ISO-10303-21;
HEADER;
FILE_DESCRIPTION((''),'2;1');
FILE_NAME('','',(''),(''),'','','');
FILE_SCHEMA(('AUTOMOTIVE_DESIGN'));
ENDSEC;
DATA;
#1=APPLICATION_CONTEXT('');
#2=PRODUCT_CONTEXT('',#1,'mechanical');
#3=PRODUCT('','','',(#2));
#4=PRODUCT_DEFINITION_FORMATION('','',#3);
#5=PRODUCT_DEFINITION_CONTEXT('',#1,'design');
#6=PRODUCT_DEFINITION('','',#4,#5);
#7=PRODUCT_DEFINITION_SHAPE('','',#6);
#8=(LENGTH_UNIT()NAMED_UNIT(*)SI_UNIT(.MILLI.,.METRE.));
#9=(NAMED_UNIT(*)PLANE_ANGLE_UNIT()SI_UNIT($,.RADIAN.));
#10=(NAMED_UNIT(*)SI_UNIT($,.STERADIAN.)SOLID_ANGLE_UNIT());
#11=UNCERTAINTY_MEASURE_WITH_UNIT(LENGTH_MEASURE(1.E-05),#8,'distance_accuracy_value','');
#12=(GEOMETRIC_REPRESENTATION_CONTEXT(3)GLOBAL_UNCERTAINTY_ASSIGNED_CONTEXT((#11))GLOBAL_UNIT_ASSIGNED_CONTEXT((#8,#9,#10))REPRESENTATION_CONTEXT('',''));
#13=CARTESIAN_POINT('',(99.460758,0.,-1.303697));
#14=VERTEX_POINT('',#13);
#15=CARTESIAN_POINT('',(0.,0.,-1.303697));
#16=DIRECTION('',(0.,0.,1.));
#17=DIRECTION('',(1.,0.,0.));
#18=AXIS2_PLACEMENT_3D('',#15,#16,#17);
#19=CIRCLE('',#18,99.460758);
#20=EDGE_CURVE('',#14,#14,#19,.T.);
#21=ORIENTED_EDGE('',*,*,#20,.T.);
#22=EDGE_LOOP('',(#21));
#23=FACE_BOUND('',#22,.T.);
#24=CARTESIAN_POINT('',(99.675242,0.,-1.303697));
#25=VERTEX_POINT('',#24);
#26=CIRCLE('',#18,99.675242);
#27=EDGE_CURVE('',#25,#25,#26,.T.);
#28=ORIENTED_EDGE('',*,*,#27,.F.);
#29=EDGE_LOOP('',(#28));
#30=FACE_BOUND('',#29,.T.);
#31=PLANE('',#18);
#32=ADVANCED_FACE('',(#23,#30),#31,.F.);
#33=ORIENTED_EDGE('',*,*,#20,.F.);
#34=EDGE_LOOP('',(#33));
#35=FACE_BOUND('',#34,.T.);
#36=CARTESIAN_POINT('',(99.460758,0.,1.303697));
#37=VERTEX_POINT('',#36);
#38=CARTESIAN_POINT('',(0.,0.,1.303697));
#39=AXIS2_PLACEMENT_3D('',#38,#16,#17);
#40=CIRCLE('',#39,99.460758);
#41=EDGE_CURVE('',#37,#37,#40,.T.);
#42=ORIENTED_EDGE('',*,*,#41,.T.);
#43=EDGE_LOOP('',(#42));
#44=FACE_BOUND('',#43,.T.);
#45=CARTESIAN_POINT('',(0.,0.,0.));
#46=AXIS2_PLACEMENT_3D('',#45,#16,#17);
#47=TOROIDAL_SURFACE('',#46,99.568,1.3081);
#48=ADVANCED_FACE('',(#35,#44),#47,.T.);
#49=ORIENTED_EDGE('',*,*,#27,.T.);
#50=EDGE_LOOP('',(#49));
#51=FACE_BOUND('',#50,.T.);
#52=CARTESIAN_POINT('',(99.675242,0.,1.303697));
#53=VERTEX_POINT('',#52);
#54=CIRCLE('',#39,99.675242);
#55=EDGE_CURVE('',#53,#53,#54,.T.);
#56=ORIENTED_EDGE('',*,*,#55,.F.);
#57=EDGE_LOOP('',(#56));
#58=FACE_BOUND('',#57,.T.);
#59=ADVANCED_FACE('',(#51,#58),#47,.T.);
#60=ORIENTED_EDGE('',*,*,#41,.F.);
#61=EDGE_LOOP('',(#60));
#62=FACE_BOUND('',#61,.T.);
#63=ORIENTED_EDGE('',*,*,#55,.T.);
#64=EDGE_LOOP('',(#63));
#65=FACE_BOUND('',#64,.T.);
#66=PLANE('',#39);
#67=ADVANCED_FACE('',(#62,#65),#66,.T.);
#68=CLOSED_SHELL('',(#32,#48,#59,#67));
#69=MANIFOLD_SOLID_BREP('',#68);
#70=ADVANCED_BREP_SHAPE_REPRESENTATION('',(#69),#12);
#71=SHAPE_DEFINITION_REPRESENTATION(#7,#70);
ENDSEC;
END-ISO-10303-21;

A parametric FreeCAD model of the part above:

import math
import FreeCAD as App
import Part
import Sketcher

V = App.Vector
Q = App.Units.Quantity

doc = App.newDocument("Part")
body = doc.addObject("PartDesign::Body", "Body")

sketch1 = doc.addObject("Sketcher::SketchObject", "Sketch")
body.addObject(sketch1)
sketch1.AttachmentSupport = (doc.YZ_Plane, [""])
sketch1.MapMode = "FlatFace"
sketch1.addGeometry([
    Part.ArcOfCircle(Part.Circle(V(-99.57, 0, 0), V(0, 0, 1), 1.31), math.radians(-85), math.radians(85)),
    Part.LineSegment(V(-99.46, 1.3, 0), V(-99.68, 1.3, 0)),
    Part.ArcOfCircle(Part.Circle(V(-99.57, 0, 0), V(0, 0, 1), 1.31), math.radians(95), math.radians(180)),
    Part.ArcOfCircle(Part.Circle(V(-99.57, 0, 0), V(0, 0, 1), 1.31), math.radians(-180), math.radians(-95)),
    Part.LineSegment(V(-99.68, -1.3, 0), V(-99.46, -1.3, 0)),
], False)
sketch1.addConstraint([
    Sketcher.Constraint("Coincident", 0, 2, 1, 1),
    Sketcher.Constraint("Coincident", 1, 2, 2, 1),
    Sketcher.Constraint("Tangent", 2, 2, 3, 1),
    Sketcher.Constraint("Coincident", 3, 2, 4, 1),
    Sketcher.Constraint("Coincident", 4, 2, 0, 1),
    Sketcher.Constraint("Horizontal", 1),
    Sketcher.Constraint("Horizontal", 4),
    Sketcher.Constraint("Coincident", 2, 3, 0, 3),
    Sketcher.Constraint("Equal", 0, 2),
    Sketcher.Constraint("Equal", 2, 3),
    Sketcher.Constraint("Symmetric", 1, 2, 3, 2, -1),
    Sketcher.Constraint("PointOnObject", 2, 2, -1),
    Sketcher.Constraint("Radius", 0, Q("0.0515 in")),
    Sketcher.Constraint("DistanceX", 0, 3, -1, 1, Q("3.92 in")),
    Sketcher.Constraint("DistanceX", 1, 2, 1, 1, 0.214484),
])
revolution = doc.addObject("PartDesign::Revolution", "Revolution")
body.addObject(revolution)
revolution.Profile = sketch1
revolution.ReferenceAxis = (sketch1, ["V_Axis"])
revolution.Angle = 360

doc.recompute()
